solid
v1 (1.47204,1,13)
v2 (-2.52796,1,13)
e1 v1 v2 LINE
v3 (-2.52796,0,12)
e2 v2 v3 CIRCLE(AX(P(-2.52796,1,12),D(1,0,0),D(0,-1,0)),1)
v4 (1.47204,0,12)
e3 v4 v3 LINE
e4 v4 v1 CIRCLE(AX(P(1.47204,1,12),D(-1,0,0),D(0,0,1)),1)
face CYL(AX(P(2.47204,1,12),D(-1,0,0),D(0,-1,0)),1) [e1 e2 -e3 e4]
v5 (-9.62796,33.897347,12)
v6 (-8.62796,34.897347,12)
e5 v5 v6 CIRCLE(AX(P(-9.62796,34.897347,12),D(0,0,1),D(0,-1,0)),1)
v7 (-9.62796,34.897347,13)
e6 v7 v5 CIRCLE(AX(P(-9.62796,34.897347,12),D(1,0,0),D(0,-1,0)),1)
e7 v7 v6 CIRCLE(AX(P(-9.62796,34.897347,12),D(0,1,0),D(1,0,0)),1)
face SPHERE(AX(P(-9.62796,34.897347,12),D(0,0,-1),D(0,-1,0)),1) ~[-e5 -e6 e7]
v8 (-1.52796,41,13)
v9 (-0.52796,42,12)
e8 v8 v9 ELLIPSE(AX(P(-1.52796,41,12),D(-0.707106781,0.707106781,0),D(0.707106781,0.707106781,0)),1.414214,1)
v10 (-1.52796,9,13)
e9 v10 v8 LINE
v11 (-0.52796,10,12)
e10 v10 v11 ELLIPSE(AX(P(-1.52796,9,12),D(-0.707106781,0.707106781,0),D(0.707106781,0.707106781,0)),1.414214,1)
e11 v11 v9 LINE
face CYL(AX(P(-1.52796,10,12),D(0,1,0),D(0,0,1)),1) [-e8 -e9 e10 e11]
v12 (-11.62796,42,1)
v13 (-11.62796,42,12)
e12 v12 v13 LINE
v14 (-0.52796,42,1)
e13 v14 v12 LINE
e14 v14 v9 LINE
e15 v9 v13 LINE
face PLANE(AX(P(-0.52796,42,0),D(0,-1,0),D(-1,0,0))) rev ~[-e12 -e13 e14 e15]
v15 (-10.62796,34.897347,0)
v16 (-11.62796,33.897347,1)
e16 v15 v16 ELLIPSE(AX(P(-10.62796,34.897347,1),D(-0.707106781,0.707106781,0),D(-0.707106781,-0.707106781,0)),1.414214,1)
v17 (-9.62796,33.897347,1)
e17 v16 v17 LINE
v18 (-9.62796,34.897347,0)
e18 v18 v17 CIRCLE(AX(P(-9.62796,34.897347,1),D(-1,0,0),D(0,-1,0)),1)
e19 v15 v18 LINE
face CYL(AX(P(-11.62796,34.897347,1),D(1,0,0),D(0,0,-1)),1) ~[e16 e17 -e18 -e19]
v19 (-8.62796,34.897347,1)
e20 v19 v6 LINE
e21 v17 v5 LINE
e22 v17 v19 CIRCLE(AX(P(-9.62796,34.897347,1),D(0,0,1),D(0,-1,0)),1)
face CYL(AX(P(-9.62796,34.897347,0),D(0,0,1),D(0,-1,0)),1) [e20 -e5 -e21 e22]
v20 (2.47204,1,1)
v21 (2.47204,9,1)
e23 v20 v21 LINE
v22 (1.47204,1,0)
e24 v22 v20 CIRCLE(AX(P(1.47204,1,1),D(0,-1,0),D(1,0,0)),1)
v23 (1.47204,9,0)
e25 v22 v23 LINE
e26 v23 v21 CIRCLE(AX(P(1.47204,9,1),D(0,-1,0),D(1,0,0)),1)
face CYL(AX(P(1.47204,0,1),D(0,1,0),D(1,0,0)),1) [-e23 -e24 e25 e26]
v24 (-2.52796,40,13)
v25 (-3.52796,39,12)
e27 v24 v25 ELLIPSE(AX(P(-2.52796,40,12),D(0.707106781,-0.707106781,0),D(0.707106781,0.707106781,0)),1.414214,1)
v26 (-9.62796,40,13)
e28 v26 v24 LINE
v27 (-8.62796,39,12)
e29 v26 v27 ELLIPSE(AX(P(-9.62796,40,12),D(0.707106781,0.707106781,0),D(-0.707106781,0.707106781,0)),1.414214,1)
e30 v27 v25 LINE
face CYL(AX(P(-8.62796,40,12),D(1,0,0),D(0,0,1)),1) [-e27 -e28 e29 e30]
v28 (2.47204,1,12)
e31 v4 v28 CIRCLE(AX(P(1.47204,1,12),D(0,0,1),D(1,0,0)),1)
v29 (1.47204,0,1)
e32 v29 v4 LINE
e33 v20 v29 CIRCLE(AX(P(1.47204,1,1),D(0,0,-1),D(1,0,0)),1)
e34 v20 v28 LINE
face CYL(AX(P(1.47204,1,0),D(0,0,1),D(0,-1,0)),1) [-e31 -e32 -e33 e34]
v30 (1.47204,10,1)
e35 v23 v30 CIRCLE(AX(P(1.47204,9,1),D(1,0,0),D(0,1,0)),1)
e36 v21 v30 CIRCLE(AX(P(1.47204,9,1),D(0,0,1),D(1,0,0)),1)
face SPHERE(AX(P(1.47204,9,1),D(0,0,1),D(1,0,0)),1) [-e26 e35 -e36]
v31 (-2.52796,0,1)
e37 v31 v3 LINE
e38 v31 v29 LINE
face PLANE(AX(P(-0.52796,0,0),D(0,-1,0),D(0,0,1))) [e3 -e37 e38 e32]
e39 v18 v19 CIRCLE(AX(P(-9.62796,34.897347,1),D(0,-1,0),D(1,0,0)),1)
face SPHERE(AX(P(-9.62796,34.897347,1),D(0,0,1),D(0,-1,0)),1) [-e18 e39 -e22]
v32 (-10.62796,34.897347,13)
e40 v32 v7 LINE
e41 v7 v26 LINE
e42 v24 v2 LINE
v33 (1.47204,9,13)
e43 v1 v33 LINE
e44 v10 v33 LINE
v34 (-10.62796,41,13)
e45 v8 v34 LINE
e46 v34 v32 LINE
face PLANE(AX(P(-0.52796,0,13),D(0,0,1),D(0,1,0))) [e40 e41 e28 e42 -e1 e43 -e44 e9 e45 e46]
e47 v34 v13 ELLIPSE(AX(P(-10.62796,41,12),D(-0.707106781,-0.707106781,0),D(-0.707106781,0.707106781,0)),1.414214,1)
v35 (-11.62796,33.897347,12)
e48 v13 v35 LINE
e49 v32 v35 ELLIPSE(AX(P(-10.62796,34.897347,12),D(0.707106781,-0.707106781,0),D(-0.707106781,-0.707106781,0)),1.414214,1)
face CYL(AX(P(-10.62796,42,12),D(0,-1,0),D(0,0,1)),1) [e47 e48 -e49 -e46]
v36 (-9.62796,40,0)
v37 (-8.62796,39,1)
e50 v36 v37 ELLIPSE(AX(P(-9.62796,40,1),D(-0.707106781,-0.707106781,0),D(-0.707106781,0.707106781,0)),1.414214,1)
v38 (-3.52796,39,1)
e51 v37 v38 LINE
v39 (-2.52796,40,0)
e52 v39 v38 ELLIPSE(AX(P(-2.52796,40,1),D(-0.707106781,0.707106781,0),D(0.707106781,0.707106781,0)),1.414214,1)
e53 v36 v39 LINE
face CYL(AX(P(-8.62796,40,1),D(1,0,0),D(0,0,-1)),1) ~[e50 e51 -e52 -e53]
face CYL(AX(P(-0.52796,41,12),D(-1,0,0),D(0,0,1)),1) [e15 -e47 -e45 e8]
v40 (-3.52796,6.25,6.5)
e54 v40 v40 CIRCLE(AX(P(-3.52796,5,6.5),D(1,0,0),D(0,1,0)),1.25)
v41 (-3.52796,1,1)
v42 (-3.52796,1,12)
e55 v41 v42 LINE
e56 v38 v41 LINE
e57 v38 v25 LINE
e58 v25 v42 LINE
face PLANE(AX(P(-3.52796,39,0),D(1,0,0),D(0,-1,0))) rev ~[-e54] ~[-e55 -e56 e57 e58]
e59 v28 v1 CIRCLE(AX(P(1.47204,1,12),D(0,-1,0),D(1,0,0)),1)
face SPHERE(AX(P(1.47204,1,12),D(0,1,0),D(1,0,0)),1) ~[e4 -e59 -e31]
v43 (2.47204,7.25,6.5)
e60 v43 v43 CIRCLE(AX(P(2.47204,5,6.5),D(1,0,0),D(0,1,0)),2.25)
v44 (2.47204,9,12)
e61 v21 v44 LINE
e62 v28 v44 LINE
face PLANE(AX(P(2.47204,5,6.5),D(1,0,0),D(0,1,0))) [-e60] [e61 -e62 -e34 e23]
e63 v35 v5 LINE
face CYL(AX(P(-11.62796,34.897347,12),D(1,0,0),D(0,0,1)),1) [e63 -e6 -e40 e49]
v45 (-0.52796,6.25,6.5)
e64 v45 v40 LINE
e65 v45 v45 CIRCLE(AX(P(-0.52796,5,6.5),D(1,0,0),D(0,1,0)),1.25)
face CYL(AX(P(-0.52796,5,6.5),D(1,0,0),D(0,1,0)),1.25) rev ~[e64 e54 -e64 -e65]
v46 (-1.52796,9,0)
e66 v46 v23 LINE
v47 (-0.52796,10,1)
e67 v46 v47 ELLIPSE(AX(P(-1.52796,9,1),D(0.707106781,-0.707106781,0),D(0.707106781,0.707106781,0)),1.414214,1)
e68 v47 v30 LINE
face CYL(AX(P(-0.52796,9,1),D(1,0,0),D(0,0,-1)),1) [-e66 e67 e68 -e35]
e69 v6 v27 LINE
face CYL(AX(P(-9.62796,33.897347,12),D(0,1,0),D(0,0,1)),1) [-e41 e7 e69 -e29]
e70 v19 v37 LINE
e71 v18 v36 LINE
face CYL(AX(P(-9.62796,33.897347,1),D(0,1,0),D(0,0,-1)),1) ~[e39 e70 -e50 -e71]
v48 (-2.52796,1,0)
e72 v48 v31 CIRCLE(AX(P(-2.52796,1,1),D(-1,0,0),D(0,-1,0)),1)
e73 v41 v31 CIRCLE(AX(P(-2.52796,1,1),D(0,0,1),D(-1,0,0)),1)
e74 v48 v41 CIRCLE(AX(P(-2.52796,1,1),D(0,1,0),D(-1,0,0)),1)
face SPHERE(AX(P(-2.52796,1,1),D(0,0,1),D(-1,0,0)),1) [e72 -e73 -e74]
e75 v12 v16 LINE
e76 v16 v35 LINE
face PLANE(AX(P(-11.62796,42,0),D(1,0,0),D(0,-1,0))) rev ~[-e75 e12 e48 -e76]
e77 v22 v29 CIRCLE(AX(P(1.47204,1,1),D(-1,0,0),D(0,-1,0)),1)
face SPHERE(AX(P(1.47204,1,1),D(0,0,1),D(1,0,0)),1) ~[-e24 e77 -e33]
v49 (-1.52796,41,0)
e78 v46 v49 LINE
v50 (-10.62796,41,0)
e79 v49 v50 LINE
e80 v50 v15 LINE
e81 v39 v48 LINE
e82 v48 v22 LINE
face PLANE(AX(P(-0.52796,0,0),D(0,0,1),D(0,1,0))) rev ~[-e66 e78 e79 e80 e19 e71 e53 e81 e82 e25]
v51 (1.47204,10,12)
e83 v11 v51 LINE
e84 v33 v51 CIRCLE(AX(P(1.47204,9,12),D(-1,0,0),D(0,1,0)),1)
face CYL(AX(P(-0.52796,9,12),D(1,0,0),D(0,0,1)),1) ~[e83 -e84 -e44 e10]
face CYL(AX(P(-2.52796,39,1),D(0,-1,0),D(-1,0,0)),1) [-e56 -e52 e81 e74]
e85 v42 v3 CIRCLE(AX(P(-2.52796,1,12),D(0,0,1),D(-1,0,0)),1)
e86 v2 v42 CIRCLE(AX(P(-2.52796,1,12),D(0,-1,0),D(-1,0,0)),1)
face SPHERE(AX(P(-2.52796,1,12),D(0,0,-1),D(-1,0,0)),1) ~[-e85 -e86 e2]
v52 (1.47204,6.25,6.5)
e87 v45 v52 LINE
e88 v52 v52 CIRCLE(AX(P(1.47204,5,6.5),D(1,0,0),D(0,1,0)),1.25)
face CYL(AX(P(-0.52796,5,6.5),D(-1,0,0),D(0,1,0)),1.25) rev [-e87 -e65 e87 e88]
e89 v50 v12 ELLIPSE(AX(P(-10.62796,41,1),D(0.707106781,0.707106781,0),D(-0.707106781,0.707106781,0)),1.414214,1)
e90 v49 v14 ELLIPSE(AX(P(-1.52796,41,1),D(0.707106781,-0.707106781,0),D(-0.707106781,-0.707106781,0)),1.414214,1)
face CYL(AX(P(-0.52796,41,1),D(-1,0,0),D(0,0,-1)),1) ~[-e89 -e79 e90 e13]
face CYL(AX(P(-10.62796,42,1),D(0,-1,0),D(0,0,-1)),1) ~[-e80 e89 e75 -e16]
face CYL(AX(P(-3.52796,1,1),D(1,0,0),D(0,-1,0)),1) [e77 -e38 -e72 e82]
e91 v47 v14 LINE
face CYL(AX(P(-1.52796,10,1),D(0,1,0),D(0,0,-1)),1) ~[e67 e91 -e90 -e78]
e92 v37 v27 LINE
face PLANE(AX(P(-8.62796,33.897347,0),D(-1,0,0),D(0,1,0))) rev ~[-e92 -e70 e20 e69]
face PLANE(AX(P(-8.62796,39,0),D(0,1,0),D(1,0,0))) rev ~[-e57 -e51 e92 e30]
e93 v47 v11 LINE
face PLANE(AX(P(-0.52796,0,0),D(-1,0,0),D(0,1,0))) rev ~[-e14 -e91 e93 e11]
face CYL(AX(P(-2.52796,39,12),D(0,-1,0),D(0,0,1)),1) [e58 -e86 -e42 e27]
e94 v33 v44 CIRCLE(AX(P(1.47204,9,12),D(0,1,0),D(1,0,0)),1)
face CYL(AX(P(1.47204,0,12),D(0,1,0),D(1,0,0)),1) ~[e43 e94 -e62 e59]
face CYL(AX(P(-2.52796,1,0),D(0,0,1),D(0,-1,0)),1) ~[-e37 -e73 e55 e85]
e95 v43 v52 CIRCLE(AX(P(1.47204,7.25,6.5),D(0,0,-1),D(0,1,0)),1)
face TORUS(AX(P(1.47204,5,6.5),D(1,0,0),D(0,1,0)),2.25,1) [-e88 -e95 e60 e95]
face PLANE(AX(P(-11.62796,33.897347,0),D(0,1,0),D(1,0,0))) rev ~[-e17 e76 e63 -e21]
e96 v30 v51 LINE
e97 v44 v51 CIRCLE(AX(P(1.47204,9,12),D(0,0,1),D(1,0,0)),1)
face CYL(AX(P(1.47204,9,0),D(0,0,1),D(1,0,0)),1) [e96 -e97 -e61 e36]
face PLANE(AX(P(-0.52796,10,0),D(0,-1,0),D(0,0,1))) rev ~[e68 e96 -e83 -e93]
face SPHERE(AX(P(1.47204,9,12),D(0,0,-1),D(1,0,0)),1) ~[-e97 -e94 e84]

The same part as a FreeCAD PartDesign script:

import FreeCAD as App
import Part
import Sketcher
from FreeCAD import Vector
Q = App.Units.Quantity


def edges_at(feature, points):
    """Names of the edges that pass closest to the given points."""
    edges = feature.Shape.Edges
    near = lambda p: min(range(len(edges)), key=lambda i: edges[i].distToShape(Part.Vertex(*p))[0])
    return sorted({f"Edge{near(p) + 1}" for p in points})

doc = App.newDocument("Part")
body = doc.addObject("PartDesign::Body", "Body")

sketch1 = body.newObject("Sketcher::SketchObject", "Sketch")
sketch1.AttachmentSupport = (doc.getObject("XY_Plane"), [""])
sketch1.MapMode = "FlatFace"
sketch1.addGeometry([
    Part.LineSegment(Vector(-11.62796, 33.897347, 0), Vector(-8.62796, 33.897347, 0)),
    Part.LineSegment(Vector(-8.62796, 33.897347, 0), Vector(-8.62796, 39, 0)),
    Part.LineSegment(Vector(-8.62796, 39, 0), Vector(-3.52796, 39, 0)),
    Part.LineSegment(Vector(-3.52796, 39, 0), Vector(-3.52796, 0, 0)),
    Part.LineSegment(Vector(-3.52796, 0, 0), Vector(-0.52796, 0, 0)),
    Part.LineSegment(Vector(-0.52796, 0, 0), Vector(-0.52796, 42, 0)),
    Part.LineSegment(Vector(-0.52796, 42, 0), Vector(-11.62796, 42, 0)),
    Part.LineSegment(Vector(-11.62796, 42, 0), Vector(-11.62796, 33.897347, 0)),
], False)
sketch1.addConstraint([
    Sketcher.Constraint("Coincident", 0, 2, 1, 1),
    Sketcher.Constraint("Coincident", 1, 2, 2, 1),
    Sketcher.Constraint("Coincident", 2, 2, 3, 1),
    Sketcher.Constraint("Coincident", 3, 2, 4, 1),
    Sketcher.Constraint("Coincident", 4, 2, 5, 1),
    Sketcher.Constraint("Coincident", 5, 2, 6, 1),
    Sketcher.Constraint("Coincident", 6, 2, 7, 1),
    Sketcher.Constraint("Coincident", 7, 2, 0, 1),
    Sketcher.Constraint("Horizontal", 0),
    Sketcher.Constraint("Vertical", 1),
    Sketcher.Constraint("Horizontal", 2),
    Sketcher.Constraint("Vertical", 3),
    Sketcher.Constraint("Horizontal", 4),
    Sketcher.Constraint("Vertical", 5),
    Sketcher.Constraint("Horizontal", 6),
    Sketcher.Constraint("Vertical", 7),
    Sketcher.Constraint("PointOnObject", 3, 2, -1),
    Sketcher.Constraint("Equal", 0, 4),
    Sketcher.Constraint("DistanceX", 0, 1, 0, 2, Q("3 mm")),
    Sketcher.Constraint("DistanceY", 3, 2, 3, 1, Q("39 mm")),
    Sketcher.Constraint("DistanceY", 5, 1, 5, 2, Q("42 mm")),
    Sketcher.Constraint("DistanceX", 2, 1, 2, 2, Q("5.1 mm")),
    Sketcher.Constraint("DistanceY", 1, 1, 1, 2, Q("5.102653 mm")),
    Sketcher.Constraint("DistanceX", 0, 2, -1, 1, Q("8.62796 mm")),
])
pad1 = body.newObject("PartDesign::Pad", "Pad")
pad1.Profile = sketch1
pad1.Length = 13

sketch2 = body.newObject("Sketcher::SketchObject", "Sketch001")
sketch2.AttachmentSupport = (doc.getObject("YZ_Plane"), [""])
sketch2.MapMode = "FlatFace"
sketch2.AttachmentOffset = App.Placement(Vector(0, 0, -0.52796), App.Rotation())
sketch2.addGeometry([
    Part.LineSegment(Vector(0, 13, 0), Vector(0, 0, 0)),
    Part.LineSegment(Vector(0, 0, 0), Vector(10, 0, 0)),
    Part.LineSegment(Vector(10, 0, 0), Vector(10, 13, 0)),
    Part.LineSegment(Vector(10, 13, 0), Vector(0, 13, 0)),
    Part.Circle(Vector(5, 6.5, 0), Vector(0, 0, 1), 1.25),
], False)
sketch2.addConstraint([
    Sketcher.Constraint("Coincident", 0, 2, 1, 1),
    Sketcher.Constraint("Coincident", 1, 2, 2, 1),
    Sketcher.Constraint("Coincident", 2, 2, 3, 1),
    Sketcher.Constraint("Coincident", 3, 2, 0, 1),
    Sketcher.Constraint("Vertical", 0),
    Sketcher.Constraint("Horizontal", 1),
    Sketcher.Constraint("Vertical", 2),
    Sketcher.Constraint("Horizontal", 3),
    Sketcher.Constraint("Coincident", 0, 2, -1, 1),
    Sketcher.Constraint("Diameter", 4, Q("2.5 mm")),
    Sketcher.Constraint("DistanceX", 1, 1, 1, 2, Q("10 mm")),
    Sketcher.Constraint("DistanceY", 0, 2, 0, 1, Q("13 mm")),
    Sketcher.Constraint("DistanceX", -1, 1, 4, 3, Q("5 mm")),
    Sketcher.Constraint("DistanceY", -1, 1, 4, 3, Q("6.5 mm")),
])
pad2 = body.newObject("PartDesign::Pad", "Pad001")
pad2.Profile = sketch2
pad2.Length = 3

sketch3 = body.newObject("Sketcher::SketchObject", "Sketch002")
sketch3.AttachmentSupport = (doc.getObject("YZ_Plane"), [""])
sketch3.MapMode = "FlatFace"
sketch3.AttachmentOffset = App.Placement(Vector(0, 0, -0.52796), App.Rotation())
sketch3.addGeometry(Part.Circle(Vector(5, 6.5, 0), Vector(0, 0, 1), 1.25), False)
sketch3.addConstraint([
    Sketcher.Constraint("Diameter", 0, Q("2.5 mm")),
    Sketcher.Constraint("DistanceX", -1, 1, 0, 3, Q("5 mm")),
    Sketcher.Constraint("DistanceY", -1, 1, 0, 3, Q("6.5 mm")),
])
pocket1 = body.newObject("PartDesign::Pocket", "Pocket")
pocket1.Profile = sketch3
pocket1.Length = 25
doc.recompute()

fillet = body.newObject("PartDesign::Fillet", "Fillet")
fillet.Base = (pocket1, edges_at(pocket1, [
    (-8.628, 33.897, 6.5),
    (-3.528, 0, 6.5),
    (2.472, 10, 6.5),
    (2.472, 5, 13),
    (2.472, 0, 6.5),
    (2.472, 5, 0),
    (2.472, 3.75, 6.5),
    (-0.528, 26, 13),
    (-6.078, 42, 13),
    (-11.628, 37.949, 13),
    (-10.128, 33.897, 13),
    (-8.628, 36.449, 13),
    (-6.078, 39, 13),
    (-3.528, 19.5, 13),
    (-0.528, 0, 13),
    (0.972, 10, 13),
    (-6.078, 42, 0),
    (-11.628, 37.949, 0),
    (-10.128, 33.897, 0),
    (-8.628, 36.449, 0),
    (-6.078, 39, 0),
    (-3.528, 19.5, 0),
    (-0.528, 0, 0),
    (0.972, 10, 0),
    (-0.528, 26, 0),
]))
fillet.Radius = 1

doc.recompute()
